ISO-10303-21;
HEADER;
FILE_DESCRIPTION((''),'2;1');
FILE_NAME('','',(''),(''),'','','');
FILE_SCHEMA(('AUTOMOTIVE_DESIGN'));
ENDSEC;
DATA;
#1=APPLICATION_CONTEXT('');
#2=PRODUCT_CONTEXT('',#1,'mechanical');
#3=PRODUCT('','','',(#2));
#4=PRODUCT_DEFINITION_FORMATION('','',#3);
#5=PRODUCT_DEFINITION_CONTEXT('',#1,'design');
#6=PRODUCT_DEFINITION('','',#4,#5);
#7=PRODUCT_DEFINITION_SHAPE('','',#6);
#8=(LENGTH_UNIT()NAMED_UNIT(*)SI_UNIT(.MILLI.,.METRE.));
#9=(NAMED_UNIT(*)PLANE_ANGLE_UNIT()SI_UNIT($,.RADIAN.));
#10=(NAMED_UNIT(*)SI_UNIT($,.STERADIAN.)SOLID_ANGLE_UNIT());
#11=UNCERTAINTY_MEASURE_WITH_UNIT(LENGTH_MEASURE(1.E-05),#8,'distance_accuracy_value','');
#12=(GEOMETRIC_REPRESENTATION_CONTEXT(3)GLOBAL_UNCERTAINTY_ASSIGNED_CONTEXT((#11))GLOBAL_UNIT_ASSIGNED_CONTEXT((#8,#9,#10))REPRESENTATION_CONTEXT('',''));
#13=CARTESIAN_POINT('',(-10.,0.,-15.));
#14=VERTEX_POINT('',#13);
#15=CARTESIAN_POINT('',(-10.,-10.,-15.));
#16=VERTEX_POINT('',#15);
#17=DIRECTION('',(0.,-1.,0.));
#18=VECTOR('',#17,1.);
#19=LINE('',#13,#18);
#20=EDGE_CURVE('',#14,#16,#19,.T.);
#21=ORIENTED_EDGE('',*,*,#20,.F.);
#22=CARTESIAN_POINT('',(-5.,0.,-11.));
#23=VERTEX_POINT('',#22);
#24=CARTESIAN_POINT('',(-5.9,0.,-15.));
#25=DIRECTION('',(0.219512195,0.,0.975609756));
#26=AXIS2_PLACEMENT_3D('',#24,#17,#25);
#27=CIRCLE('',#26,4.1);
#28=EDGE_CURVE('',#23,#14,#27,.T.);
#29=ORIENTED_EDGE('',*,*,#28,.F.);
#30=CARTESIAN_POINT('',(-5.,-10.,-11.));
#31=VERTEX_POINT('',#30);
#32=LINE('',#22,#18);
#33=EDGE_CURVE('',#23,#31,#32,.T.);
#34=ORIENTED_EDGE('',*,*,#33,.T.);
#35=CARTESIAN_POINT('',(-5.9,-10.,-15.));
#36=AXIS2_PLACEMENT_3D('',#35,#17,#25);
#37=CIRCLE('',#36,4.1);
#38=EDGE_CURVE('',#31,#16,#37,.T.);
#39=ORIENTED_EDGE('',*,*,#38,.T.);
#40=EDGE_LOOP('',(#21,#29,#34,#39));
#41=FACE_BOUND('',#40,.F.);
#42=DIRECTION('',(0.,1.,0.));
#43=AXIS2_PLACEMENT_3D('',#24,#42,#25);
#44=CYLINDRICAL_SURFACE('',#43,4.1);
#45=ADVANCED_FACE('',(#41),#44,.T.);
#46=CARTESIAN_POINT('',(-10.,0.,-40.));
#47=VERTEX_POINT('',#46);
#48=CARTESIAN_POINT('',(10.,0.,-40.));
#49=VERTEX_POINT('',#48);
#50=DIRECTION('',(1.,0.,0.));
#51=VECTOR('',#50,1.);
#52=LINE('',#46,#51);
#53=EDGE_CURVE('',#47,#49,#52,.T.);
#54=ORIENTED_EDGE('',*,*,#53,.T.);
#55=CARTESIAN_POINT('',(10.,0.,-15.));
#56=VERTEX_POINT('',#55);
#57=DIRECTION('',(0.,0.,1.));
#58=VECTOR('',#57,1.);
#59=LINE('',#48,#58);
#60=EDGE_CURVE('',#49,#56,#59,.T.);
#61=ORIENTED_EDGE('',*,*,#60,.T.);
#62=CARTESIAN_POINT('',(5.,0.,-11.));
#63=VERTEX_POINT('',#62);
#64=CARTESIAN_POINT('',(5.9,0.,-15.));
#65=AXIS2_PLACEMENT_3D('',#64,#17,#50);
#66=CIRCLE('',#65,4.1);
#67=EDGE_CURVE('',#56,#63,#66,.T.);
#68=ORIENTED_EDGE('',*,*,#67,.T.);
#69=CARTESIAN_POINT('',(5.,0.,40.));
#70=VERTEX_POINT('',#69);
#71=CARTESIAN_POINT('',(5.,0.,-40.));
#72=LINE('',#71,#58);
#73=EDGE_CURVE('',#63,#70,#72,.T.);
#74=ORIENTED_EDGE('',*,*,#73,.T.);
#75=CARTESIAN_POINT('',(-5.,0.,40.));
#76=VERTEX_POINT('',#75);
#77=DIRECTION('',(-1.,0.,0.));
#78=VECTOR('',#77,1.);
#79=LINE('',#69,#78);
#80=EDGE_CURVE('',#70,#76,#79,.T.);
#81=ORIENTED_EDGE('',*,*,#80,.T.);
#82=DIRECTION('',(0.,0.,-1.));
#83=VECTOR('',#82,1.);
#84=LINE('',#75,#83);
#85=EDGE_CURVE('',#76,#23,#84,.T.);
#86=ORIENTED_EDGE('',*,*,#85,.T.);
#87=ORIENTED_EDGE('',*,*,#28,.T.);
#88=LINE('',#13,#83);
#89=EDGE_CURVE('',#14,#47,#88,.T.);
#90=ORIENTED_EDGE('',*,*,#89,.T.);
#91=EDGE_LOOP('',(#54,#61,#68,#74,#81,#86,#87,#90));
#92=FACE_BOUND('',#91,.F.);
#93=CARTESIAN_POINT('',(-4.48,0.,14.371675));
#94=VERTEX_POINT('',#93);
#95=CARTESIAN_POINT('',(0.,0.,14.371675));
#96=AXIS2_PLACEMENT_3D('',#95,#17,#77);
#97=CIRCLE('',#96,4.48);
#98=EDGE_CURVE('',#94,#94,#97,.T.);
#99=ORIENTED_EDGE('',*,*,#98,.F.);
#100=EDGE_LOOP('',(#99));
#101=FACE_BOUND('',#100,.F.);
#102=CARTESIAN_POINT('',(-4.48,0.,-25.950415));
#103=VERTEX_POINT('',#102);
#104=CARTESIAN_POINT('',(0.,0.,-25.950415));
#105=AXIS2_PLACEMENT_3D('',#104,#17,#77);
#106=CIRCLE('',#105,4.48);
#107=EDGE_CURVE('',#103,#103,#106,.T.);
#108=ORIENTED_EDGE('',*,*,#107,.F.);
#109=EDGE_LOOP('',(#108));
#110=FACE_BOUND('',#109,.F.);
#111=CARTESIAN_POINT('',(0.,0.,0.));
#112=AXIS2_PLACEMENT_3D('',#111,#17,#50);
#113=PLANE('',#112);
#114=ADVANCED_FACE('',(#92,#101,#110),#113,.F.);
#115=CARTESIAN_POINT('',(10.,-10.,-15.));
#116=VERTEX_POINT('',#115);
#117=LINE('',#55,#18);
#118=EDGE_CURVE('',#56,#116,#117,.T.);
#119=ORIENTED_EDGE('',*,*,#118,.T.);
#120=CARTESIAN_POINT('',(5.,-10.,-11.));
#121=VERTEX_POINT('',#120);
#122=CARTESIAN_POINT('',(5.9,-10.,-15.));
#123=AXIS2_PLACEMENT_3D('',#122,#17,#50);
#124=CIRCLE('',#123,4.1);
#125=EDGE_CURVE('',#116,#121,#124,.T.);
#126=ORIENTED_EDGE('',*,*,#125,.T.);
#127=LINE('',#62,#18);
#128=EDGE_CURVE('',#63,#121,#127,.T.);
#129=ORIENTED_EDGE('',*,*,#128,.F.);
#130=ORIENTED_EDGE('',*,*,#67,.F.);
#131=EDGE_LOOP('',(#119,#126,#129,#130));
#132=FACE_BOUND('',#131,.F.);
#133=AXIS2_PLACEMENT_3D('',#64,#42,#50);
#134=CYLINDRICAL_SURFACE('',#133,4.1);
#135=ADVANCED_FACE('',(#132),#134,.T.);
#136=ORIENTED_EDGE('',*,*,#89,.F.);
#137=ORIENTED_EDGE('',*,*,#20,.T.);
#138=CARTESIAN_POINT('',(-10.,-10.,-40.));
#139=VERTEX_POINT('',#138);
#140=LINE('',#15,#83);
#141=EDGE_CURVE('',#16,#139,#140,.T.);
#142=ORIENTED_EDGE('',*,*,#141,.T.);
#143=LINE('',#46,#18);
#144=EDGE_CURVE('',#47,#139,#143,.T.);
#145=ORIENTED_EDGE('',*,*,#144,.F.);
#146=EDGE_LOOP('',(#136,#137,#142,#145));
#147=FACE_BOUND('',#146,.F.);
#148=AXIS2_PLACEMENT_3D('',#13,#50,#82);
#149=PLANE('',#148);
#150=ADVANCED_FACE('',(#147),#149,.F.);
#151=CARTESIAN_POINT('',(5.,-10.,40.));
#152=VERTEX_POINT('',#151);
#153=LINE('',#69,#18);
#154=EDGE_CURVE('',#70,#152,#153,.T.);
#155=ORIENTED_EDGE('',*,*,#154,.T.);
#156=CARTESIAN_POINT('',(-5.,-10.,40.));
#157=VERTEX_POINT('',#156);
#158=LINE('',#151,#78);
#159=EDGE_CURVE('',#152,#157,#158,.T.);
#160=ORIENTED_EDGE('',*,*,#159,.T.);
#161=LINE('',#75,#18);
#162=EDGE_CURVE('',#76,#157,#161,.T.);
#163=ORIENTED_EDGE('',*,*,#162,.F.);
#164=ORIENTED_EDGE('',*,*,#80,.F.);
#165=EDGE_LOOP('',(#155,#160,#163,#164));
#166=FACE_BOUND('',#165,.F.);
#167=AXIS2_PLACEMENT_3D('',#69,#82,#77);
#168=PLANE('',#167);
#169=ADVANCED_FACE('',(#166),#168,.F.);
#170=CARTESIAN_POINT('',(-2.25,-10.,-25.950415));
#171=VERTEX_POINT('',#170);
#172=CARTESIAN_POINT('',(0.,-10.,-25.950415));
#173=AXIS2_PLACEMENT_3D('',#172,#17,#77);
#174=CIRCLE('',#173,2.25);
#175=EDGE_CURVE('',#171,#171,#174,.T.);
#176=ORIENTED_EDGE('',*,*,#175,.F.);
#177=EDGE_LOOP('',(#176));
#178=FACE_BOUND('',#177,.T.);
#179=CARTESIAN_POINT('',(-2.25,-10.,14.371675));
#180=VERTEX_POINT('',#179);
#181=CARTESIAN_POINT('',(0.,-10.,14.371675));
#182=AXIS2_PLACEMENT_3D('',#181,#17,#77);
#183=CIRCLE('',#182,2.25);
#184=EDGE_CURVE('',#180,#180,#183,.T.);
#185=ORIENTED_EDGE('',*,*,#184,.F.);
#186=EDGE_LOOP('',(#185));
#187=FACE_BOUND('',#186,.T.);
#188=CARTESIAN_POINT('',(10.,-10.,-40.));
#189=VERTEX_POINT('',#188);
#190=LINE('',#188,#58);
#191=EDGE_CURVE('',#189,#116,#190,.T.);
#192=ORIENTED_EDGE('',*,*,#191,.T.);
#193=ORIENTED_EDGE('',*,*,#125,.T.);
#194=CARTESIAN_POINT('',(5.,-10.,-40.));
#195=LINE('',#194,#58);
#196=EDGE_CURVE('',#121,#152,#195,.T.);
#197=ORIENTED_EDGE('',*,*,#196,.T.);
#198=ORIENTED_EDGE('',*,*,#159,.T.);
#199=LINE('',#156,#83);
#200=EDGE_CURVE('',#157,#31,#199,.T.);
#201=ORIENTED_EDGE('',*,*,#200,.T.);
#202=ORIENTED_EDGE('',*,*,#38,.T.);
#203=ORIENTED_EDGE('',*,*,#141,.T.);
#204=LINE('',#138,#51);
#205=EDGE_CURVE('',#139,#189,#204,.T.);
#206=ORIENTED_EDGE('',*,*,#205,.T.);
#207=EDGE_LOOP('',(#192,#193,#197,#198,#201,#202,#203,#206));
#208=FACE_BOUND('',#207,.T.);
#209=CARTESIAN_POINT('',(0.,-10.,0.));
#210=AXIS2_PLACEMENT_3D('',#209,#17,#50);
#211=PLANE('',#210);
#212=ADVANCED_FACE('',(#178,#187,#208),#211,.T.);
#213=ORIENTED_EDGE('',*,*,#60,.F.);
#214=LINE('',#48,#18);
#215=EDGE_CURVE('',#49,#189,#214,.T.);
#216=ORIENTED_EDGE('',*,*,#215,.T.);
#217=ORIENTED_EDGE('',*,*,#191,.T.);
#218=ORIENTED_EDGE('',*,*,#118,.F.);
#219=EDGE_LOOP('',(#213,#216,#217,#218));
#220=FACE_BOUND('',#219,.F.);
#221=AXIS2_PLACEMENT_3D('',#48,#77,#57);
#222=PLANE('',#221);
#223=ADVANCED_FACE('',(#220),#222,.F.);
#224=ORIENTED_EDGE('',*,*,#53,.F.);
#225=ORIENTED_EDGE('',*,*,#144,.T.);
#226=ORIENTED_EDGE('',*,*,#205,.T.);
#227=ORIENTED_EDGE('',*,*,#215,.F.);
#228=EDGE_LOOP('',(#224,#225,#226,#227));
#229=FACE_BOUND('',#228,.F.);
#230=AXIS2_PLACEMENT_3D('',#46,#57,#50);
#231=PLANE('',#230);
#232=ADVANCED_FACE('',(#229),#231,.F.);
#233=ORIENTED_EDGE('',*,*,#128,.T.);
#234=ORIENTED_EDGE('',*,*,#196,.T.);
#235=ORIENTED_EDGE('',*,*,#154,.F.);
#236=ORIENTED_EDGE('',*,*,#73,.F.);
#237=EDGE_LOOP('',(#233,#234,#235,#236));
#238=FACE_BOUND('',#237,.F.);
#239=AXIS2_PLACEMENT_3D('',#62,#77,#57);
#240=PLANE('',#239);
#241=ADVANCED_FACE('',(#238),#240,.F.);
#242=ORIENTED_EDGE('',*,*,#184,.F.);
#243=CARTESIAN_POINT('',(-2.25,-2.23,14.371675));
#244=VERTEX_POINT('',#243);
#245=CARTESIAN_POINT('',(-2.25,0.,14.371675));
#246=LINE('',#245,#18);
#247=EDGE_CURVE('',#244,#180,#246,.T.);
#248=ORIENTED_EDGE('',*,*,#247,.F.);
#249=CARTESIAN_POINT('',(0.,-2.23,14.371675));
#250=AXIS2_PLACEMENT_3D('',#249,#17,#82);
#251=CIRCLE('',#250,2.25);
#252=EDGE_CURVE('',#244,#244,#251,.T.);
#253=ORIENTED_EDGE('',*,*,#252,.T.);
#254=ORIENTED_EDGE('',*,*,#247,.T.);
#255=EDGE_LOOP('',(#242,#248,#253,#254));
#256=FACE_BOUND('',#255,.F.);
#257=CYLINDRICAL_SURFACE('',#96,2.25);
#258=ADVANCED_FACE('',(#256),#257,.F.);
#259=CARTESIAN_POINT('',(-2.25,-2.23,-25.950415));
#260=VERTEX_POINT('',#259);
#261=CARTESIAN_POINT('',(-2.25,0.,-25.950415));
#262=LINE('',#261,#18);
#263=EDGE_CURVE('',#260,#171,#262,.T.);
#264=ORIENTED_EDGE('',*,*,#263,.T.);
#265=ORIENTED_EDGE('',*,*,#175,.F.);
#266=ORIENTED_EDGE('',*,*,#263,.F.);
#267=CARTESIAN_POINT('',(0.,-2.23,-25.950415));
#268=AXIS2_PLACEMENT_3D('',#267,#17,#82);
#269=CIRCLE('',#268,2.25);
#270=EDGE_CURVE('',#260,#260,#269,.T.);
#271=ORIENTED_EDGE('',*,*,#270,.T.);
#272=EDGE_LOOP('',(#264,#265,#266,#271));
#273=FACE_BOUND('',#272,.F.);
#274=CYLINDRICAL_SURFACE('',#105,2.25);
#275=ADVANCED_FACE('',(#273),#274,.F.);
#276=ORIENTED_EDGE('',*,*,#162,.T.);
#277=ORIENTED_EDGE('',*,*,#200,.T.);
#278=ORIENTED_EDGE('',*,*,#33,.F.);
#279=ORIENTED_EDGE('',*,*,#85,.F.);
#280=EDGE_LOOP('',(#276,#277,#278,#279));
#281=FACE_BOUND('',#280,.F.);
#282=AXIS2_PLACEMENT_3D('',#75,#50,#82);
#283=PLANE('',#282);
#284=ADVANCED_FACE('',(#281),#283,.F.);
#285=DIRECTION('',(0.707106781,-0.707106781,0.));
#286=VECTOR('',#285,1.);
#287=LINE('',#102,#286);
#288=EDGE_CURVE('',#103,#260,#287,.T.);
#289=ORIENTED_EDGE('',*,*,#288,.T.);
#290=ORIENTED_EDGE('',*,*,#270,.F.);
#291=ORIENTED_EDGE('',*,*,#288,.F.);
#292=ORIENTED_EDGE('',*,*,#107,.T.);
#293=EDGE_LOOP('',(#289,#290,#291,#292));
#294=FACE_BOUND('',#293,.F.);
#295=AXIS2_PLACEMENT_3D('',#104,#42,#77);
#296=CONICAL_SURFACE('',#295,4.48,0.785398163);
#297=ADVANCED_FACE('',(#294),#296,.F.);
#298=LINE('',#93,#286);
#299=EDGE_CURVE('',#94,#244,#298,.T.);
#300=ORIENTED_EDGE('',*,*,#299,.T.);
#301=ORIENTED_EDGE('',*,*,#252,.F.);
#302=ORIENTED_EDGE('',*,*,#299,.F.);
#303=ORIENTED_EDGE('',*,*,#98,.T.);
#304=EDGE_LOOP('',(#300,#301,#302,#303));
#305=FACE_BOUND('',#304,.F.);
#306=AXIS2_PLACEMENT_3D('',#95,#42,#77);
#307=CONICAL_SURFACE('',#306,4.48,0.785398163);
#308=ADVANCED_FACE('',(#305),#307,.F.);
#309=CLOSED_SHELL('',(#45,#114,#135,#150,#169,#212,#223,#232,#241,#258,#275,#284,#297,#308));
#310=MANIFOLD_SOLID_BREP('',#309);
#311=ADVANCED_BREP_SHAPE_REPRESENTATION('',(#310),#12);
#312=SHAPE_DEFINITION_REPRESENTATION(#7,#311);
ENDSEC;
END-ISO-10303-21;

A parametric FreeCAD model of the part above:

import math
import FreeCAD as App
import Part
import Sketcher

V = App.Vector

doc = App.newDocument("Part")
body = doc.addObject("PartDesign::Body", "Body")

# Sketch on XZ plane
sketch1 = body.newObject("Sketcher::SketchObject", "Sketch")
sketch1.AttachmentSupport = (doc.getObject("XZ_Plane"), [""])
sketch1.MapMode = "FlatFace"
sketch1.addGeometry([
    Part.LineSegment(V(5, 40, 0), V(-5, 40, 0)),  # 0
    Part.LineSegment(V(-5, 40, 0), V(-5, -11, 0)),  # 1
    Part.ArcOfCircle(Part.Circle(V(-5.9, -15, 0), V(0, 0, 1), 4.1), math.radians(77), math.radians(180)),  # 2
    Part.LineSegment(V(-10, -15, 0), V(-10, -40, 0)),  # 3
    Part.LineSegment(V(-10, -40, 0), V(10, -40, 0)),  # 4
    Part.LineSegment(V(10, -40, 0), V(10, -15, 0)),  # 5
    Part.ArcOfCircle(Part.Circle(V(5.9, -15, 0), V(0, 0, 1), 4.1), math.radians(0), math.radians(103)),  # 6
    Part.LineSegment(V(5, -11, 0), V(5, 40, 0)),  # 7
], False)
sketch1.addConstraint([
    Sketcher.Constraint("Coincident", 0, 2, 1, 1),
    Sketcher.Constraint("Coincident", 1, 2, 2, 1),
    Sketcher.Constraint("Tangent", 2, 2, 3, 1),
    Sketcher.Constraint("Coincident", 3, 2, 4, 1),
    Sketcher.Constraint("Coincident", 4, 2, 5, 1),
    Sketcher.Constraint("Tangent", 5, 2, 6, 1),
    Sketcher.Constraint("Coincident", 6, 2, 7, 1),
    Sketcher.Constraint("Coincident", 7, 2, 0, 1),
    Sketcher.Constraint("Horizontal", 0),
    Sketcher.Constraint("Vertical", 1),
    Sketcher.Constraint("Vertical", 3),
    Sketcher.Constraint("Horizontal", 4),
    Sketcher.Constraint("Vertical", 5),
    Sketcher.Constraint("Vertical", 7),
    Sketcher.Constraint("Equal", 2, 6),
    Sketcher.Constraint("Symmetric", 2, 3, 6, 3, -2),
    Sketcher.Constraint("Horizontal", 1, 2, 6, 2),
    Sketcher.Constraint("Radius", 2, 4.1),
    Sketcher.Constraint("DistanceX", 0, 2, 0, 1, 10.0),
    Sketcher.Constraint("DistanceX", 4, 1, 4, 2, 20.0),
    Sketcher.Constraint("DistanceY", 1, 2, 1, 1, 51.0),
    Sketcher.Constraint("DistanceY", 3, 2, 3, 1, 25.0),
    Sketcher.Constraint("DistanceY", 2, 3, -1, 1, 15.0),
])
pad1 = body.newObject("PartDesign::Pad", "Pad")
pad1.Profile = sketch1
pad1.Length = 10

# Sketch on XZ plane
sketch2 = body.newObject("Sketcher::SketchObject", "Sketch001")
sketch2.AttachmentSupport = (doc.getObject("XZ_Plane"), [""])
sketch2.MapMode = "FlatFace"
sketch2.addGeometry([
    Part.Circle(V(0, 14.4, 0), V(0, 0, 1), 2.2),
    Part.Circle(V(0, -26, 0), V(0, 0, 1), 2.2),
], False)
sketch2.addConstraint([
    Sketcher.Constraint("Equal", 0, 1),
    Sketcher.Constraint("PointOnObject", 0, 3, -2),
    Sketcher.Constraint("PointOnObject", 1, 3, -2),
    Sketcher.Constraint("Diameter", 0, 4.5),
    Sketcher.Constraint("DistanceY", 1, 3, 0, 3, 40.32209),
    Sketcher.Constraint("DistanceY", -1, 1, 0, 3, 14.371675),
])
doc.recompute()
hole = body.newObject("PartDesign::Hole", "Hole")
hole.Profile = sketch2
hole.ThreadType = "None"
hole.Diameter = 4.5
hole.DepthType = "ThroughAll"
hole.HoleCutType = "Countersink"
hole.HoleCutDiameter = 8.96
hole.HoleCutCountersinkAngle = 90
hole.Reversed = True

doc.recompute()
